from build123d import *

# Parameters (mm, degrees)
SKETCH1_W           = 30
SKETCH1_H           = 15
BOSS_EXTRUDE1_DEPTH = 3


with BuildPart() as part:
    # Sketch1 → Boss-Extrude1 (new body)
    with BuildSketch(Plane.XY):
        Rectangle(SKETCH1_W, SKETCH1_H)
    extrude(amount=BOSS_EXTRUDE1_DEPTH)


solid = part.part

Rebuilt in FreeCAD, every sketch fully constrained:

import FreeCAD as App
import Part
import Sketcher
from FreeCAD import Vector


def add_polygon(sketch, points):
    """Adds a closed chain of lines whose ends are joined by coincident constraints."""
    first, n = sketch.GeometryCount, len(points)
    for a, b in zip(points, points[1:] + points[:1]):
        sketch.addGeometry(Part.LineSegment(App.Vector(*a, 0), App.Vector(*b, 0)), False)
    for i in range(n):
        sketch.addConstraint(Sketcher.Constraint("Coincident", first + i, 2, first + (i + 1) % n, 1))

doc = App.newDocument("Part")
body = doc.addObject("PartDesign::Body", "Body")

# Sketch on XY plane
sketch1 = doc.addObject("Sketcher::SketchObject", "Sketch")
body.addObject(sketch1)
sketch1.AttachmentSupport = (doc.XY_Plane, [""])
sketch1.MapMode = "FlatFace"
add_polygon(sketch1, [(-15, 8), (-15, -8), (15, -8), (15, 8)])  # lines 0-3
sketch1.addConstraint([
    Sketcher.Constraint("Vertical", 0),
    Sketcher.Constraint("Horizontal", 1),
    Sketcher.Constraint("Vertical", 2),
    Sketcher.Constraint("Horizontal", 3),
    Sketcher.Constraint("Symmetric", 0, 2, 2, 2, -1, 1),
    Sketcher.Constraint("DistanceX", 1, 1, 1, 2, 30.0),
    Sketcher.Constraint("DistanceY", 0, 2, 0, 1, 15.0),
])
pad1 = doc.addObject("PartDesign::Pad", "Pad")
body.addObject(pad1)
pad1.Profile = sketch1
pad1.Length = 3

doc.recompute()
